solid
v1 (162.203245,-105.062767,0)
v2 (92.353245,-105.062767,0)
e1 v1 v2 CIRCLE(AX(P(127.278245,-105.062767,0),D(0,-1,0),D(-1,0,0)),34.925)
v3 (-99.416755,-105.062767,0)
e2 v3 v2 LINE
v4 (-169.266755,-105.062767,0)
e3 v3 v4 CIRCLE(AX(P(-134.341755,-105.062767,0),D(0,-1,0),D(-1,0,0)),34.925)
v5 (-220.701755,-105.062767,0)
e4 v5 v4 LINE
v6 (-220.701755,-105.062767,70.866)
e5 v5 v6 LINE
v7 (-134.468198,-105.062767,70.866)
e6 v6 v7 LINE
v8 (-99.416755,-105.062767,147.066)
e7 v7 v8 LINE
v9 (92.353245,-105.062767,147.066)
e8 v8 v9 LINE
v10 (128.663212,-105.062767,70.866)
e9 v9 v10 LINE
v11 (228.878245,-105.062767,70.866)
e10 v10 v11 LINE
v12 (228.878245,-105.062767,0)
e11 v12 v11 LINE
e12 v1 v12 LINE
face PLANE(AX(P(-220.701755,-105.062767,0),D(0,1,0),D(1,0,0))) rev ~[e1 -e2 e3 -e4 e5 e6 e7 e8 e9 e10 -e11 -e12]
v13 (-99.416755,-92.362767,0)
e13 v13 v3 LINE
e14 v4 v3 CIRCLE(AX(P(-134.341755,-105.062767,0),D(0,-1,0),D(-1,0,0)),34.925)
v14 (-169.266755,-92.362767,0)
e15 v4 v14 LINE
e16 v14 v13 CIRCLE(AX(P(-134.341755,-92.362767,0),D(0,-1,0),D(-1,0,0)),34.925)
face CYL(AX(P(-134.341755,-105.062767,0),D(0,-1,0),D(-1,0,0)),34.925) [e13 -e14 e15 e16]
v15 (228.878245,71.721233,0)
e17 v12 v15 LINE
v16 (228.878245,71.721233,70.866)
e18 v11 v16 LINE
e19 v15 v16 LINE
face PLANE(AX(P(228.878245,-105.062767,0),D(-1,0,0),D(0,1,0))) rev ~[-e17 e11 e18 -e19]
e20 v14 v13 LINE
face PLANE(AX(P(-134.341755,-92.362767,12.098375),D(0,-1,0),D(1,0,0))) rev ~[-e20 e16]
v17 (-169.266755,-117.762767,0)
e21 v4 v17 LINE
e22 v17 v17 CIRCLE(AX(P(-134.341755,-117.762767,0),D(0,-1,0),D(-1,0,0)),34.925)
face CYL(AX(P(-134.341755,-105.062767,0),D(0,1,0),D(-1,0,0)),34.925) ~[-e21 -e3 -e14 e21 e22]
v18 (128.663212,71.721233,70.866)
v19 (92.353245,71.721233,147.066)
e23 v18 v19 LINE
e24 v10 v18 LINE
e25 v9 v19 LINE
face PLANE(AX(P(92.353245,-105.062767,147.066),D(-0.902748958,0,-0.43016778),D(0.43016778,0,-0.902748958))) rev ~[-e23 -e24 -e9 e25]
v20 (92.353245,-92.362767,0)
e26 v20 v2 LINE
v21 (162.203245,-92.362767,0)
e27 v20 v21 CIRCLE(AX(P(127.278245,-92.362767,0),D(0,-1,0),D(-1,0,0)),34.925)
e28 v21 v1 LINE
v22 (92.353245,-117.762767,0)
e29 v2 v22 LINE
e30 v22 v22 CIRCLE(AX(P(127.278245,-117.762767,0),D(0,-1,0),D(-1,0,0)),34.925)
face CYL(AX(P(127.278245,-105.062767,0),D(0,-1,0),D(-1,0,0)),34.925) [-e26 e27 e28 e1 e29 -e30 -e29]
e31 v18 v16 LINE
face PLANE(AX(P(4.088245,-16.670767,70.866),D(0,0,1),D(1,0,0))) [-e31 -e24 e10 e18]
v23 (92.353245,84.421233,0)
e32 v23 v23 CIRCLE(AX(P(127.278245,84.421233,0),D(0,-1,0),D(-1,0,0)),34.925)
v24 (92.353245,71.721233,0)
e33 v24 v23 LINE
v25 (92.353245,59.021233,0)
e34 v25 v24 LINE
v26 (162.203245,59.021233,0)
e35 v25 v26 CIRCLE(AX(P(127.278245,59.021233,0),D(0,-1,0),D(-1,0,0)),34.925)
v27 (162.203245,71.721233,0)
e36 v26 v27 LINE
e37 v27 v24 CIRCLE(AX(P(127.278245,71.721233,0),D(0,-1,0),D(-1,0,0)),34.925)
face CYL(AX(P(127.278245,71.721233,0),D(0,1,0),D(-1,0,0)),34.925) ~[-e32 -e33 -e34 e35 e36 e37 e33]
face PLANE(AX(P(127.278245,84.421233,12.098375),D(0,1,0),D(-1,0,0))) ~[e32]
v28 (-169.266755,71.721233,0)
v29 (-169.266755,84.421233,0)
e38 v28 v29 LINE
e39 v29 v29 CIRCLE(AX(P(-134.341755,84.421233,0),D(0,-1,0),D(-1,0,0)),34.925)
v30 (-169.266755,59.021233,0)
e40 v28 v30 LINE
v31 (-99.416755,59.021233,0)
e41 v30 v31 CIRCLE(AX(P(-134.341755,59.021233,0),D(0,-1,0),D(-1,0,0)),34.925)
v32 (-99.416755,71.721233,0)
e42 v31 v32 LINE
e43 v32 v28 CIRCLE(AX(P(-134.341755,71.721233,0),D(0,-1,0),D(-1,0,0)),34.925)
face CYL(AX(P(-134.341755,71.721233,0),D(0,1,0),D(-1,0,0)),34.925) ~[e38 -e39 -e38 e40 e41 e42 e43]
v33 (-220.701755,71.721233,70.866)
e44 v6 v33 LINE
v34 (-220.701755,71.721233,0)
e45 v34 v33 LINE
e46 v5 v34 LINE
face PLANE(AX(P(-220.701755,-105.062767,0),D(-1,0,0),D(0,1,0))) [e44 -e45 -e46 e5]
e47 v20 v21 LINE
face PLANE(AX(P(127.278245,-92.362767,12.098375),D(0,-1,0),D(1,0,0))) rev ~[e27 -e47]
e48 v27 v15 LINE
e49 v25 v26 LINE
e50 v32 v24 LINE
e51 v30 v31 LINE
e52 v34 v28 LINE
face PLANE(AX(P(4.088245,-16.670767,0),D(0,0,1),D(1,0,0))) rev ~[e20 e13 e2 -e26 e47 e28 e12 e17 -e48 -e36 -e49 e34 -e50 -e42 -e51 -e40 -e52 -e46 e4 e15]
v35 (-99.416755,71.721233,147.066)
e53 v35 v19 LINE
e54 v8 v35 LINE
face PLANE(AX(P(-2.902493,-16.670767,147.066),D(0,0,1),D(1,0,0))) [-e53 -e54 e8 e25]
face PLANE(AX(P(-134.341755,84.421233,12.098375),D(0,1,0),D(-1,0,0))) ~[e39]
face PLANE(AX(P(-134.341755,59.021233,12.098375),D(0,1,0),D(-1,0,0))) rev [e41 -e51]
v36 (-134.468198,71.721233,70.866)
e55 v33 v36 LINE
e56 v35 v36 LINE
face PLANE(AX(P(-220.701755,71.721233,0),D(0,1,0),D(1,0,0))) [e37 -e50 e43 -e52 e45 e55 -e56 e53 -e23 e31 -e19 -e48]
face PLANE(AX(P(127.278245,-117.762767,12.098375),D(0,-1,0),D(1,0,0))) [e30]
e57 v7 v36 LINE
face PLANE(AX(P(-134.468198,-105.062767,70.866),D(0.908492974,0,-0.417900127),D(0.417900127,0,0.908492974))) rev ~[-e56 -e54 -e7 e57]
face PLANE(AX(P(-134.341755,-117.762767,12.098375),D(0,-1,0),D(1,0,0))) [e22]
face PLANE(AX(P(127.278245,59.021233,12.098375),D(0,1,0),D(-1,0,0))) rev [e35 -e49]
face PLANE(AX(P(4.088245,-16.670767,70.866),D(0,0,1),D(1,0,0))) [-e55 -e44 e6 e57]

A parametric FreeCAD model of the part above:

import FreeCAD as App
import Part
import Sketcher
from FreeCAD import Vector
Q = App.Units.Quantity

doc = App.newDocument("Part")
body = doc.addObject("PartDesign::Body", "Body")

# Sketch on XY plane
sketch1 = body.newObject("Sketcher::SketchObject", "Sketch")
sketch1.AttachmentSupport = (doc.getObject("XY_Plane"), [""])
sketch1.MapMode = "FlatFace"
sketch1.addGeometry(Part.LineSegment(Vector(-220.701755, 71.721233, 0), Vector(-220.701755, -105.062767, 0)), False)
sketch1.addGeometry(Part.LineSegment(Vector(-220.701755, -105.062767, 0), Vector(228.878245, -105.062767, 0)), False)
sketch1.addGeometry(Part.LineSegment(Vector(228.878245, -105.062767, 0), Vector(228.878245, 71.721233, 0)), False)
sketch1.addGeometry(Part.LineSegment(Vector(228.878245, 71.721233, 0), Vector(-220.701755, 71.721233, 0)), False)
sketch1.addConstraint(Sketcher.Constraint("Coincident", 0, 2, 1, 1))
sketch1.addConstraint(Sketcher.Constraint("Coincident", 1, 2, 2, 1))
sketch1.addConstraint(Sketcher.Constraint("Coincident", 2, 2, 3, 1))
sketch1.addConstraint(Sketcher.Constraint("Coincident", 3, 2, 0, 1))
sketch1.addConstraint(Sketcher.Constraint("Vertical", 0))
sketch1.addConstraint(Sketcher.Constraint("Horizontal", 1))
sketch1.addConstraint(Sketcher.Constraint("Vertical", 2))
sketch1.addConstraint(Sketcher.Constraint("Horizontal", 3))
sketch1.addConstraint(Sketcher.Constraint("DistanceX", 1, 1, 1, 2, Q("17.7 in")))
sketch1.addConstraint(Sketcher.Constraint("DistanceY", 0, 2, 0, 1, Q("6.96 in")))
sketch1.addConstraint(Sketcher.Constraint("DistanceX", 0, 2, -1, 1, Q("220.701755 mm")))
sketch1.addConstraint(Sketcher.Constraint("DistanceY", 0, 2, -1, 1, Q("105.062767 mm")))
pad1 = body.newObject("PartDesign::Pad", "Pad")
pad1.Profile = sketch1
pad1.Length = Q("2.79 in")

# Sketch on XZ plane
sketch2 = body.newObject("Sketcher::SketchObject", "Sketch001")
sketch2.AttachmentSupport = (doc.getObject("XZ_Plane"), [""])
sketch2.MapMode = "FlatFace"
sketch2.AttachmentOffset = App.Placement(Vector(0, 0, 105.062767), App.Rotation())
sketch2.addGeometry(Part.Circle(Vector(-134.341755, 0, 0), Vector(0, 0, 1), 34.925), False)
sketch2.addGeometry(Part.Circle(Vector(127.278245, 0, 0), Vector(0, 0, 1), 34.925), False)
sketch2.addConstraint(Sketcher.Constraint("Equal", 0, 1))
sketch2.addConstraint(Sketcher.Constraint("PointOnObject", 0, 3, -1))
sketch2.addConstraint(Sketcher.Constraint("PointOnObject", 1, 3, -1))
sketch2.addConstraint(Sketcher.Constraint("Diameter", 0, Q("2.75 in")))
sketch2.addConstraint(Sketcher.Constraint("DistanceX", 0, 3, 1, 3, Q("10.3 in")))
sketch2.addConstraint(Sketcher.Constraint("DistanceX", 0, 3, -1, 1, Q("134.341755 mm")))
pad2 = body.newObject("PartDesign::Pad", "Pad001")
pad2.Profile = sketch2
pad2.Length = Q("1 in")
pad2.Midplane = True
body2 = doc.addObject("PartDesign::Body", "Body001")
doc.recompute()

body2.BaseFeature = body
doc.recompute()

mirroring = doc.addObject("Part::Mirroring", "Mirroring")
mirroring.Source = body
mirroring.Base = Vector(5.13005, -16.670767, 38.250844)
mirroring.Normal = Vector(0, -1, 0)
body3 = doc.addObject("PartDesign::Body", "Body002")
body3.BaseFeature = mirroring
boolean = body2.newObject("PartDesign::Boolean", "Boolean")
boolean.Type = "Fuse"
boolean.addObjects([body3])
doc.recompute()

# Sketch on XY plane
sketch3 = body2.newObject("Sketcher::SketchObject", "Sketch002")
sketch3.AttachmentSupport = (doc.getObject("XY_Plane001"), [""])
sketch3.MapMode = "FlatFace"
sketch3.AttachmentOffset = App.Placement(Vector(0, 0, 2.79 * 25.4), App.Rotation())
sketch3.addGeometry(Part.LineSegment(Vector(-134.468198, 71.721233, 0), Vector(-134.468198, -105.062767, 0)), False)
sketch3.addGeometry(Part.LineSegment(Vector(-134.468198, -105.062767, 0), Vector(128.663212, -105.062767, 0)), False)
sketch3.addGeometry(Part.LineSegment(Vector(128.663212, -105.062767, 0), Vector(128.663212, 71.721233, 0)), False)
sketch3.addGeometry(Part.LineSegment(Vector(128.663212, 71.721233, 0), Vector(-134.468198, 71.721233, 0)), False)
sketch3.addConstraint(Sketcher.Constraint("Coincident", 0, 2, 1, 1))
sketch3.addConstraint(Sketcher.Constraint("Coincident", 1, 2, 2, 1))
sketch3.addConstraint(Sketcher.Constraint("Coincident", 2, 2, 3, 1))
sketch3.addConstraint(Sketcher.Constraint("Coincident", 3, 2, 0, 1))
sketch3.addConstraint(Sketcher.Constraint("Vertical", 0))
sketch3.addConstraint(Sketcher.Constraint("Horizontal", 1))
sketch3.addConstraint(Sketcher.Constraint("Vertical", 2))
sketch3.addConstraint(Sketcher.Constraint("Horizontal", 3))
sketch3.addConstraint(Sketcher.Constraint("DistanceY", 0, 2, 0, 1, Q("6.96 in")))
sketch3.addConstraint(Sketcher.Constraint("DistanceX", 1, 1, 1, 2, Q("263.13141 mm")))
sketch3.addConstraint(Sketcher.Constraint("DistanceX", 0, 2, -1, 1, Q("134.468198 mm")))
sketch3.addConstraint(Sketcher.Constraint("DistanceY", 0, 2, -1, 1, Q("105.062767 mm")))
pad3 = body2.newObject("PartDesign::Pad", "Pad002")
pad3.Profile = sketch3
pad3.Length = Q("3 in")

# Sketch on XZ plane
sketch4 = body2.newObject("Sketcher::SketchObject", "Sketch003")
sketch4.AttachmentSupport = (doc.getObject("XZ_Plane001"), [""])
sketch4.MapMode = "FlatFace"
sketch4.AttachmentOffset = App.Placement(Vector(0, 0, 105.062767), App.Rotation())
sketch4.addGeometry(Part.LineSegment(Vector(-134.468198, 147.066, 0), Vector(-134.468198, 70.866, 0)), False)
sketch4.addGeometry(Part.LineSegment(Vector(-134.468198, 70.866, 0), Vector(-99.416755, 147.066, 0)), False)
sketch4.addGeometry(Part.LineSegment(Vector(-99.416755, 147.066, 0), Vector(-134.468198, 147.066, 0)), False)
sketch4.addGeometry(Part.LineSegment(Vector(128.663212, 147.066, 0), Vector(92.353245, 147.066, 0)), False)
sketch4.addGeometry(Part.LineSegment(Vector(92.353245, 147.066, 0), Vector(128.663212, 70.866, 0)), False)
sketch4.addGeometry(Part.LineSegment(Vector(128.663212, 70.866, 0), Vector(128.663212, 147.066, 0)), False)
sketch4.addConstraint(Sketcher.Constraint("Coincident", 0, 2, 1, 1))
sketch4.addConstraint(Sketcher.Constraint("Coincident", 1, 2, 2, 1))
sketch4.addConstraint(Sketcher.Constraint("Coincident", 2, 2, 0, 1))
sketch4.addConstraint(Sketcher.Constraint("Coincident", 3, 2, 4, 1))
sketch4.addConstraint(Sketcher.Constraint("Coincident", 4, 2, 5, 1))
sketch4.addConstraint(Sketcher.Constraint("Coincident", 5, 2, 3, 1))
sketch4.addConstraint(Sketcher.Constraint("Vertical", 0))
sketch4.addConstraint(Sketcher.Constraint("Horizontal", 2))
sketch4.addConstraint(Sketcher.Constraint("Horizontal", 3))
sketch4.addConstraint(Sketcher.Constraint("Vertical", 5))
sketch4.addConstraint(Sketcher.Constraint("Horizontal", 2, 2, 3, 2))
sketch4.addConstraint(Sketcher.Constraint("Horizontal", 0, 2, 4, 2))
sketch4.addConstraint(Sketcher.Constraint("DistanceY", 0, 2, 0, 1, Q("3 in")))
sketch4.addConstraint(Sketcher.Constraint("DistanceY", -1, 1, 0, 2, Q("2.79 in")))
sketch4.addConstraint(Sketcher.Constraint("DistanceX", 1, 2, 3, 2, Q("7.55 in")))
sketch4.addConstraint(Sketcher.Constraint("DistanceX", 0, 2, -1, 1, Q("134.468198 mm")))
sketch4.addConstraint(Sketcher.Constraint("Distance", 4, Q("84.408848 mm")))
sketch4.addConstraint(Sketcher.Constraint("DistanceX", 2, 2, 2, 1, Q("35.051443 mm")))
pocket1 = body2.newObject("PartDesign::Pocket", "Pocket")
pocket1.Profile = sketch4
pocket1.Type = "ThroughAll"
mirroring.Visibility = False

doc.recompute()
